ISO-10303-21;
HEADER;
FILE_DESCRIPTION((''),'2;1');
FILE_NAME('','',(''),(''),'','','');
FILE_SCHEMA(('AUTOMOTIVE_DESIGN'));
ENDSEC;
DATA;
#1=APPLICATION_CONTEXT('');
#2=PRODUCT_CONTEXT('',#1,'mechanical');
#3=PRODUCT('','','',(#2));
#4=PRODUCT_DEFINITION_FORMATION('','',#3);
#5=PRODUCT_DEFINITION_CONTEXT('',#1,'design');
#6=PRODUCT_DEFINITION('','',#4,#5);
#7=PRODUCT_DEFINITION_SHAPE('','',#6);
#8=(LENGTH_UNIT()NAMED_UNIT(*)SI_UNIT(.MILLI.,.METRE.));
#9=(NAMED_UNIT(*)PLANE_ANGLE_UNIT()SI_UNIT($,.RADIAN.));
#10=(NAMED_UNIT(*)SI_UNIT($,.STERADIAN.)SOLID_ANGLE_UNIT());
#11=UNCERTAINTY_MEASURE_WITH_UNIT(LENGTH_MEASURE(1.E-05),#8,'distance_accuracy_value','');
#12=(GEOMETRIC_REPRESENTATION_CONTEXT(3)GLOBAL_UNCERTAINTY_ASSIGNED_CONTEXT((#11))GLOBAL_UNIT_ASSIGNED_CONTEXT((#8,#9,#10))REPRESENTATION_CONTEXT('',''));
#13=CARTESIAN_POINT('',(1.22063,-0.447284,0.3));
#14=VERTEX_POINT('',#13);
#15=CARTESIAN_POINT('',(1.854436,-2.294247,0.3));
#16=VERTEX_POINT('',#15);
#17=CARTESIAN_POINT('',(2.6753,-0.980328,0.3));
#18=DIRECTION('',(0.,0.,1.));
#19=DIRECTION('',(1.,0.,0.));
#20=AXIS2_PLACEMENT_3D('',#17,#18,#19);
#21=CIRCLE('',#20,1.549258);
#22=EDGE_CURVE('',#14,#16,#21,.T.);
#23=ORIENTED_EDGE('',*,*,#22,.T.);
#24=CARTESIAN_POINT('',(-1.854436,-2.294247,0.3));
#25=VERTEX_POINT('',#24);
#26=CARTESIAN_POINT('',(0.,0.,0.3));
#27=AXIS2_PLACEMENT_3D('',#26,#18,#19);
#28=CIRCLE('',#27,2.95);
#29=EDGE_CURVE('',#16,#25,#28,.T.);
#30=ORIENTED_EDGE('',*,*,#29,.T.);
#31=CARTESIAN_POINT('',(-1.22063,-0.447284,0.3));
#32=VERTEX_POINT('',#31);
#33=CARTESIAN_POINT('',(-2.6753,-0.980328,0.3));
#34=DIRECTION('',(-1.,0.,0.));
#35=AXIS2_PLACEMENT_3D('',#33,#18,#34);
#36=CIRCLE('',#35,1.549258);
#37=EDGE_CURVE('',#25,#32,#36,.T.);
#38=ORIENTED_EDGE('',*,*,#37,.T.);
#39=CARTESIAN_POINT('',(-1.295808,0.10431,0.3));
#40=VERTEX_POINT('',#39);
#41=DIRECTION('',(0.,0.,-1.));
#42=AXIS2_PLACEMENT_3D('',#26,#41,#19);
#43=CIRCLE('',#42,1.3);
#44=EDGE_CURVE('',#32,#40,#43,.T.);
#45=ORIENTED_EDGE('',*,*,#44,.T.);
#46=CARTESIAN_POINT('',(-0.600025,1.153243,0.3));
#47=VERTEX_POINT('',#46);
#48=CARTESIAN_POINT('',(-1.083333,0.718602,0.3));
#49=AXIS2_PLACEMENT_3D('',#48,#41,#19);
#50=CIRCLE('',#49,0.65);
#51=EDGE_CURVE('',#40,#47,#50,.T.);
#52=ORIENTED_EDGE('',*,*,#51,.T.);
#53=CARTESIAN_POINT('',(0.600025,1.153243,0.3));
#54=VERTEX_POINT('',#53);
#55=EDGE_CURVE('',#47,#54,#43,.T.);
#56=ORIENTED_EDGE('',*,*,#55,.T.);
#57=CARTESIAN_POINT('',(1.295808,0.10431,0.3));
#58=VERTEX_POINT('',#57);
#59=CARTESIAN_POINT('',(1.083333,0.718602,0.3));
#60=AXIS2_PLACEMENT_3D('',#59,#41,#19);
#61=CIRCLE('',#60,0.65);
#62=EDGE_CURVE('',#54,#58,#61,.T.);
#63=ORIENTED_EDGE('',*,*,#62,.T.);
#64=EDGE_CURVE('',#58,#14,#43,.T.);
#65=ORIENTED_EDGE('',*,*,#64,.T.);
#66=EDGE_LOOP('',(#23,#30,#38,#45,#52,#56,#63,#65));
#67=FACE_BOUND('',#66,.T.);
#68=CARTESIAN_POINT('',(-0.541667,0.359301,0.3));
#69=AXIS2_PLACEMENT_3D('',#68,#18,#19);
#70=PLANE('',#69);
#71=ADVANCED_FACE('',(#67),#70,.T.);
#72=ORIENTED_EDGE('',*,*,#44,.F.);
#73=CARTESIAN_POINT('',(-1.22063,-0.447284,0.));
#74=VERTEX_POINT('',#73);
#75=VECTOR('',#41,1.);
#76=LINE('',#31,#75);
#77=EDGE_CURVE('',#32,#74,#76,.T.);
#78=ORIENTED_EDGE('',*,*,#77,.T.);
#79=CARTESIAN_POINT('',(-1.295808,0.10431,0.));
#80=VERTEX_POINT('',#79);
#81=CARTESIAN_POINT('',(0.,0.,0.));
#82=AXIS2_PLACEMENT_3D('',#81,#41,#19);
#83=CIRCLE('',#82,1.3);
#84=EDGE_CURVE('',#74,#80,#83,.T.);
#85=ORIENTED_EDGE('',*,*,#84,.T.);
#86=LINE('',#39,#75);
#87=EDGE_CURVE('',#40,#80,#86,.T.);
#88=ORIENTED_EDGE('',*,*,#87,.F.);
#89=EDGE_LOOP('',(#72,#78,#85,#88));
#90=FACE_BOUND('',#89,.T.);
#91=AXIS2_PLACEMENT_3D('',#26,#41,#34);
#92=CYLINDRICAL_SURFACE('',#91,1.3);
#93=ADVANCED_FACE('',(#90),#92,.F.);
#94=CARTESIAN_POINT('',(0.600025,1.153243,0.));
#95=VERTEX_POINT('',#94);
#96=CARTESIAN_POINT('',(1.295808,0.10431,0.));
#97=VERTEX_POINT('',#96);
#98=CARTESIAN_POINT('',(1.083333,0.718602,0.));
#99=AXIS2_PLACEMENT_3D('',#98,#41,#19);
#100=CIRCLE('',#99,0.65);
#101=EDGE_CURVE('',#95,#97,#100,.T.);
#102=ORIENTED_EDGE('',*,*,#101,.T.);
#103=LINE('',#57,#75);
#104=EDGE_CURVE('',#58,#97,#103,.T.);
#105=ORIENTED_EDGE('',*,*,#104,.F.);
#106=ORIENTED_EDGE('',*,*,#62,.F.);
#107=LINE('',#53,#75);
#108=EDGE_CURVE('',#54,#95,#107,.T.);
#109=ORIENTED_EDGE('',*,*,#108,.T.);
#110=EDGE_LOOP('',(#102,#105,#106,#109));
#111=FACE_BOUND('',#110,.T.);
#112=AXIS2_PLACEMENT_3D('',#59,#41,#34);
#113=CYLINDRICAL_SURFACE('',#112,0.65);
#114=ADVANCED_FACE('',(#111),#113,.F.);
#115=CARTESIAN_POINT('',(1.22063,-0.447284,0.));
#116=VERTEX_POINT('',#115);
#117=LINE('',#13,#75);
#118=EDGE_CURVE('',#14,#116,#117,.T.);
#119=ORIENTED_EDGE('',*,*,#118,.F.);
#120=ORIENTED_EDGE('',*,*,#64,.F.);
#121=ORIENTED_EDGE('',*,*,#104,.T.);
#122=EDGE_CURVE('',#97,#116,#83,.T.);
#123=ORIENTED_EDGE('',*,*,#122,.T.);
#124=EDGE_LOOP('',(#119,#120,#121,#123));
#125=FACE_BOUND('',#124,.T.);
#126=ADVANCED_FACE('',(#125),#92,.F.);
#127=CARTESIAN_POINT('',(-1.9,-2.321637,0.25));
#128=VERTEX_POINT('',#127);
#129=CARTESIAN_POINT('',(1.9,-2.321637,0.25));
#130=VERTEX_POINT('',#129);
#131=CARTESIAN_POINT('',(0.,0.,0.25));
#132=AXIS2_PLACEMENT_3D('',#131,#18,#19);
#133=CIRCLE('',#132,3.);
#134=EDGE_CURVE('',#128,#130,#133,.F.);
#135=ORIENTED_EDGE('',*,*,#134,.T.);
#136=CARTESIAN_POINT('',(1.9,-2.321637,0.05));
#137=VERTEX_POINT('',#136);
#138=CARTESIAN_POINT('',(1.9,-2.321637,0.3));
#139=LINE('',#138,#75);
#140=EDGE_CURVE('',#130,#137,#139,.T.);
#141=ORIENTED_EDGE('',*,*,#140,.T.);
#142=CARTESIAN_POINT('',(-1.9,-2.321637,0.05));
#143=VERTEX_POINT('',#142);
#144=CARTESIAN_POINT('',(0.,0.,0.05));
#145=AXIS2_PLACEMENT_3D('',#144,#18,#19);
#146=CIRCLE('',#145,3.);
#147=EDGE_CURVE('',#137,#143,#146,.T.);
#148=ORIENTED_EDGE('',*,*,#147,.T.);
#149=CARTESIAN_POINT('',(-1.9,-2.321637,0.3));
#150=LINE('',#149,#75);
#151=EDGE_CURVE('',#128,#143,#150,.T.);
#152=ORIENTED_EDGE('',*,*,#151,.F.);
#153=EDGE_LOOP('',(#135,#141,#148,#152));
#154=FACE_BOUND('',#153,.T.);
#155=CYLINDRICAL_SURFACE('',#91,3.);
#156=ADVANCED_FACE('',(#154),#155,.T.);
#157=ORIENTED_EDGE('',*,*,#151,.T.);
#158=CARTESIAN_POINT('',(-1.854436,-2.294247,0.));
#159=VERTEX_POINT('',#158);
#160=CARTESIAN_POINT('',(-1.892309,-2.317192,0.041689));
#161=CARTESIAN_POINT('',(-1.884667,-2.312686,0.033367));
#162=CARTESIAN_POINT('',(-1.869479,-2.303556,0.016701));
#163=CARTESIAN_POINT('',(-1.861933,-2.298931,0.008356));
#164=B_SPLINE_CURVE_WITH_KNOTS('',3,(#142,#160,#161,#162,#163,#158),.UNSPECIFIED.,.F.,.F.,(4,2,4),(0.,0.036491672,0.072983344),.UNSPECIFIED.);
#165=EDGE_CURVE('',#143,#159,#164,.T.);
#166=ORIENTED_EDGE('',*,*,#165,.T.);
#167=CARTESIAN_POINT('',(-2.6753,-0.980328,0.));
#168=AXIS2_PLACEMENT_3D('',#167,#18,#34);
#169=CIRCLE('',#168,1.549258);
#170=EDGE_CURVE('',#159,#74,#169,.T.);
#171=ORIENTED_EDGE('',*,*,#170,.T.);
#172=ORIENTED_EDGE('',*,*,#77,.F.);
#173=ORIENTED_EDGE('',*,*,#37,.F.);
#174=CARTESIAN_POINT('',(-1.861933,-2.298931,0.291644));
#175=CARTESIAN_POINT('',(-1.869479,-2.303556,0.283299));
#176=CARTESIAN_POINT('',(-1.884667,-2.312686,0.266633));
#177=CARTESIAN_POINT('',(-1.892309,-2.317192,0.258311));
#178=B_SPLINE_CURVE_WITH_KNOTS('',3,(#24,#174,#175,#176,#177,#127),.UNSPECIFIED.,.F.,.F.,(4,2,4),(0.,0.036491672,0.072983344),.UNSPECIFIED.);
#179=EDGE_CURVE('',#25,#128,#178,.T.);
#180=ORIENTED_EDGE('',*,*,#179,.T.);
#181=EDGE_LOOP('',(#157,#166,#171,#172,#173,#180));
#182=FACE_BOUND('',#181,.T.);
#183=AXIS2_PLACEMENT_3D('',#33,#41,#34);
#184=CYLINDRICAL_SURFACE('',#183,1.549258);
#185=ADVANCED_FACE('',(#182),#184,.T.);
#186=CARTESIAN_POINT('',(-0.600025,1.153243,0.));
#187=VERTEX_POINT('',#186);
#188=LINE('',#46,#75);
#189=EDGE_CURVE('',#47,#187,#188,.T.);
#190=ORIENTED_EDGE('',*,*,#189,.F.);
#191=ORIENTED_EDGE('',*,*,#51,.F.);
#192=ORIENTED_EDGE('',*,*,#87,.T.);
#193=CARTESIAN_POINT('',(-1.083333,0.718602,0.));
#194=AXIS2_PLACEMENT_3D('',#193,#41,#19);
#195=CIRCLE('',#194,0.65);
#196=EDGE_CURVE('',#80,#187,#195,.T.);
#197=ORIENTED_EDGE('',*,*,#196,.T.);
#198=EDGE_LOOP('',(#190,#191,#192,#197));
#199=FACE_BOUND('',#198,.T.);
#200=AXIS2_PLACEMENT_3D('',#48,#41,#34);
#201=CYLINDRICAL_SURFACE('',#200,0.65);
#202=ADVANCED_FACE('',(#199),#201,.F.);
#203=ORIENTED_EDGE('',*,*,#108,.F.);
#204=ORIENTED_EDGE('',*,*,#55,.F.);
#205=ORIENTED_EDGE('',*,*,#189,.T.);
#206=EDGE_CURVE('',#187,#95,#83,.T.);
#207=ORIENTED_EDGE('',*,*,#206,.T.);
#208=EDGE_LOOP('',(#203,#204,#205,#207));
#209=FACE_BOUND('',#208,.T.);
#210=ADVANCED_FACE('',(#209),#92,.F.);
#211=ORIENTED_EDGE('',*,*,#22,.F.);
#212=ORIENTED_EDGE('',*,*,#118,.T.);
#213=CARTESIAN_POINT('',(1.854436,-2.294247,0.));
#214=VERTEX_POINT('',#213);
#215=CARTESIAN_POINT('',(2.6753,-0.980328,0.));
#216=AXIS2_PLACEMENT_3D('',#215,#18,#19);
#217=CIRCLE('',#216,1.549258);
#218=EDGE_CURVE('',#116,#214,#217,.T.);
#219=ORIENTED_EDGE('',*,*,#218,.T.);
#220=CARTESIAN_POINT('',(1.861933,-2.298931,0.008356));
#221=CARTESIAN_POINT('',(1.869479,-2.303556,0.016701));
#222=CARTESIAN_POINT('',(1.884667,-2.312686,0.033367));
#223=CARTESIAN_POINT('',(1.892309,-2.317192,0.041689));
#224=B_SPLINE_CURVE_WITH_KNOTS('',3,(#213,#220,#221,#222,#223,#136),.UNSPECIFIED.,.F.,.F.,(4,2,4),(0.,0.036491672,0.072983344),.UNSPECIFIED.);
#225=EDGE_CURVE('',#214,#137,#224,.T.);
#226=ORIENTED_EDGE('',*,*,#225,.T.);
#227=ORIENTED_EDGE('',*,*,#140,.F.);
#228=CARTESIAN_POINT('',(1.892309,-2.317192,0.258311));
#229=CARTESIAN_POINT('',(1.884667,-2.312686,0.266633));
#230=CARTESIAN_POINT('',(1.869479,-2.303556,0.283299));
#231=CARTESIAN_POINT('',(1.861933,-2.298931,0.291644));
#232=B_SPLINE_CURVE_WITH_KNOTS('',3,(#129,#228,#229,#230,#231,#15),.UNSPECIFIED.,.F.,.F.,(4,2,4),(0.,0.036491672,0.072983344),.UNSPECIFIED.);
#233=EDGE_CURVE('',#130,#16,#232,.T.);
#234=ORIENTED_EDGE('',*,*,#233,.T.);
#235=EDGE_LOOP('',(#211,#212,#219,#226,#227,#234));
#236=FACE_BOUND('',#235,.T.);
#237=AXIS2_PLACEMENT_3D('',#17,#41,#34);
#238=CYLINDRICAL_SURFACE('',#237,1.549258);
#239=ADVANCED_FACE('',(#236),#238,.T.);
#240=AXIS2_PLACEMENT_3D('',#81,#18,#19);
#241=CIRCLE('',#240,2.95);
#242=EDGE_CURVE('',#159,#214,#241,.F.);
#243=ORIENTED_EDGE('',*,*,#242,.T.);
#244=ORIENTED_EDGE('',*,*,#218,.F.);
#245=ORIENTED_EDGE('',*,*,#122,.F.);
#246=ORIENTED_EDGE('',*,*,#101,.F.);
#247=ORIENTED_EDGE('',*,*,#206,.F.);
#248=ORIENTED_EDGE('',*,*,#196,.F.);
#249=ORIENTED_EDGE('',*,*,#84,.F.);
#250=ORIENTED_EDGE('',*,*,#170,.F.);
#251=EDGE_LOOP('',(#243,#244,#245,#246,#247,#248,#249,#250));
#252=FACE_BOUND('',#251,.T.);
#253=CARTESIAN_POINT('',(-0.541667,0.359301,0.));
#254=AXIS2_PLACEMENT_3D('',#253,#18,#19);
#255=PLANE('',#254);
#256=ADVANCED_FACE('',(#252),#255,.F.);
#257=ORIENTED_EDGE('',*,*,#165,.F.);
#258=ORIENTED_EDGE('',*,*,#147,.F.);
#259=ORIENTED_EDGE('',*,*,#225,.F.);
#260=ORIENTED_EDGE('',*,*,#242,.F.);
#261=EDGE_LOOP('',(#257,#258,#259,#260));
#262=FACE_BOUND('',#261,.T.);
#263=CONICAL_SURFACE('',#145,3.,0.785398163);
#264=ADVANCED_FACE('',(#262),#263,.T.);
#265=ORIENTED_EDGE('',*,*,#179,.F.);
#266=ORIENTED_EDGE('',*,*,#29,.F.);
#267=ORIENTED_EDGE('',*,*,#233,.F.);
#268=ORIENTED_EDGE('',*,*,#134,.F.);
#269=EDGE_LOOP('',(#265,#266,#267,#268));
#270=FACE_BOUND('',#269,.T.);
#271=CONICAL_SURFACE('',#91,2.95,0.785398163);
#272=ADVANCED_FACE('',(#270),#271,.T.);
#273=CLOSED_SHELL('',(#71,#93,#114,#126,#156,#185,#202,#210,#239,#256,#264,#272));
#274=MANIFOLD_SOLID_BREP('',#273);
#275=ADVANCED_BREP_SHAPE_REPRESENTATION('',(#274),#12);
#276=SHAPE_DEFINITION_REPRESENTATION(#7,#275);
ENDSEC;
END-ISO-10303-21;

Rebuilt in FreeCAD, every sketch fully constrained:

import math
import FreeCAD as App
import Part
import Sketcher

V = App.Vector
Q = App.Units.Quantity


def edges_at(feature, points):
    """Names of the edges that pass closest to the given points."""
    edges = feature.Shape.Edges
    near = lambda p: min(range(len(edges)), key=lambda i: edges[i].distToShape(Part.Vertex(*p))[0])
    return sorted({f"Edge{near(p) + 1}" for p in points})

doc = App.newDocument("Part")
params = doc.addObject("Spreadsheet::Sheet", "Params")
for row, (alias, value) in enumerate([
    ("sketch1_radius", "3 mm"),
    ("sketch1_radius2", "1.3 mm"),
    ("sketch1_radius3", "0.65 mm"),
    ("pad1_length", "0.3 mm"),
    ("chamfer_size", "0.05 mm"),
], start=1):
    params.set(f"A{row}", alias)
    params.set(f"B{row}", "=" + value)
    params.setAlias(f"B{row}", alias)

body = doc.addObject("PartDesign::Body", "Body")

# Sketch on XY plane
sketch1 = doc.addObject("Sketcher::SketchObject", "Sketch")
body.addObject(sketch1)
sketch1.AttachmentSupport = (doc.XY_Plane, [""])
sketch1.MapMode = "FlatFace"
sketch1.addGeometry(Part.ArcOfCircle(Part.Circle(V(0, 0, 0), V(0, 0, 1), 1.3), math.radians(175), math.radians(200)), False)
sketch1.addGeometry(Part.ArcOfCircle(Part.Circle(V(-1.1, 0.7, 0), V(0, 0, 1), 0.7), math.radians(42), math.radians(251)), False)
sketch1.addGeometry(Part.ArcOfCircle(Part.Circle(V(0, 0, 0), V(0, 0, 1), 1.3), math.radians(63), math.radians(117)), False)
sketch1.addGeometry(Part.ArcOfCircle(Part.Circle(V(1.1, 0.7, 0), V(0, 0, 1), 0.7), math.radians(-71), math.radians(138)), False)
sketch1.addGeometry(Part.ArcOfCircle(Part.Circle(V(0, 0, 0), V(0, 0, 1), 1.3), math.radians(-20), math.radians(5)), False)
sketch1.addGeometry(Part.ArcOfCircle(Part.Circle(V(2.7, -1, 0), V(0, 0, 1), 1.5), math.radians(160), math.radians(240)), False)
sketch1.addGeometry(Part.ArcOfCircle(Part.Circle(V(0, 0, 0), V(0, 0, 1), 3), math.radians(-51), math.radians(231)), False)
sketch1.addGeometry(Part.ArcOfCircle(Part.Circle(V(-2.7, -1, 0), V(0, 0, 1), 1.5), math.radians(-60), math.radians(20)), False)
sketch1.addConstraint(Sketcher.Constraint("Coincident", 0, 1, 1, 2))
sketch1.addConstraint(Sketcher.Constraint("Coincident", 1, 1, 2, 2))
sketch1.addConstraint(Sketcher.Constraint("Coincident", 2, 1, 3, 2))
sketch1.addConstraint(Sketcher.Constraint("Coincident", 3, 1, 4, 2))
sketch1.addConstraint(Sketcher.Constraint("Tangent", 4, 1, 5, 1))
sketch1.addConstraint(Sketcher.Constraint("Coincident", 5, 2, 6, 1))
sketch1.addConstraint(Sketcher.Constraint("Coincident", 6, 2, 7, 1))
sketch1.addConstraint(Sketcher.Constraint("Tangent", 7, 2, 0, 2))
sketch1.addConstraint(Sketcher.Constraint("Coincident", 0, 3, -1, 1))
sketch1.addConstraint(Sketcher.Constraint("Coincident", 2, 3, -1, 1))
sketch1.addConstraint(Sketcher.Constraint("Coincident", 4, 3, -1, 1))
sketch1.addConstraint(Sketcher.Constraint("Coincident", 6, 3, -1, 1))
sketch1.addConstraint(Sketcher.Constraint("Equal", 0, 2))
sketch1.addConstraint(Sketcher.Constraint("Equal", 1, 3))
sketch1.addConstraint(Sketcher.Constraint("Equal", 2, 4))
sketch1.addConstraint(Sketcher.Constraint("Equal", 5, 7))
sketch1.addConstraint(Sketcher.Constraint("Symmetric", 1, 3, 3, 3, -2))
sketch1.addConstraint(Sketcher.Constraint("Horizontal", 5, 3, 7, 3))
sketch1.addConstraint(Sketcher.Constraint("Radius", 6, Q("3 mm")))
sketch1.addConstraint(Sketcher.Constraint("Radius", 0, Q("1.3 mm")))
sketch1.addConstraint(Sketcher.Constraint("Radius", 1, Q("0.65 mm")))
sketch1.addConstraint(Sketcher.Constraint("DistanceX", -1, 1, 5, 2, Q("1.9 mm")))
sketch1.addConstraint(Sketcher.Constraint("Radius", 5, Q("1.549258 mm")))
sketch1.addConstraint(Sketcher.Constraint("DistanceX", 0, 1, -1, 1, Q("1.295808 mm")))
sketch1.addConstraint(Sketcher.Constraint("DistanceY", 5, 3, 3, 3, Q("1.69893 mm")))
sketch1.setExpression("Constraints[18]", "Params.sketch1_radius")
sketch1.setExpression("Constraints[19]", "Params.sketch1_radius2")
sketch1.setExpression("Constraints[20]", "Params.sketch1_radius3")
pad1 = doc.addObject("PartDesign::Pad", "Pad")
body.addObject(pad1)
pad1.Profile = sketch1
pad1.setExpression("Length", "Params.pad1_length")
doc.recompute()

chamfer = doc.addObject("PartDesign::Chamfer", "Chamfer")
body.addObject(chamfer)
chamfer.Base = (pad1, edges_at(pad1, [(0, 3, 0.3), (0, 3, 0)]))
chamfer.setExpression("Size", "Params.chamfer_size")

doc.recompute()
